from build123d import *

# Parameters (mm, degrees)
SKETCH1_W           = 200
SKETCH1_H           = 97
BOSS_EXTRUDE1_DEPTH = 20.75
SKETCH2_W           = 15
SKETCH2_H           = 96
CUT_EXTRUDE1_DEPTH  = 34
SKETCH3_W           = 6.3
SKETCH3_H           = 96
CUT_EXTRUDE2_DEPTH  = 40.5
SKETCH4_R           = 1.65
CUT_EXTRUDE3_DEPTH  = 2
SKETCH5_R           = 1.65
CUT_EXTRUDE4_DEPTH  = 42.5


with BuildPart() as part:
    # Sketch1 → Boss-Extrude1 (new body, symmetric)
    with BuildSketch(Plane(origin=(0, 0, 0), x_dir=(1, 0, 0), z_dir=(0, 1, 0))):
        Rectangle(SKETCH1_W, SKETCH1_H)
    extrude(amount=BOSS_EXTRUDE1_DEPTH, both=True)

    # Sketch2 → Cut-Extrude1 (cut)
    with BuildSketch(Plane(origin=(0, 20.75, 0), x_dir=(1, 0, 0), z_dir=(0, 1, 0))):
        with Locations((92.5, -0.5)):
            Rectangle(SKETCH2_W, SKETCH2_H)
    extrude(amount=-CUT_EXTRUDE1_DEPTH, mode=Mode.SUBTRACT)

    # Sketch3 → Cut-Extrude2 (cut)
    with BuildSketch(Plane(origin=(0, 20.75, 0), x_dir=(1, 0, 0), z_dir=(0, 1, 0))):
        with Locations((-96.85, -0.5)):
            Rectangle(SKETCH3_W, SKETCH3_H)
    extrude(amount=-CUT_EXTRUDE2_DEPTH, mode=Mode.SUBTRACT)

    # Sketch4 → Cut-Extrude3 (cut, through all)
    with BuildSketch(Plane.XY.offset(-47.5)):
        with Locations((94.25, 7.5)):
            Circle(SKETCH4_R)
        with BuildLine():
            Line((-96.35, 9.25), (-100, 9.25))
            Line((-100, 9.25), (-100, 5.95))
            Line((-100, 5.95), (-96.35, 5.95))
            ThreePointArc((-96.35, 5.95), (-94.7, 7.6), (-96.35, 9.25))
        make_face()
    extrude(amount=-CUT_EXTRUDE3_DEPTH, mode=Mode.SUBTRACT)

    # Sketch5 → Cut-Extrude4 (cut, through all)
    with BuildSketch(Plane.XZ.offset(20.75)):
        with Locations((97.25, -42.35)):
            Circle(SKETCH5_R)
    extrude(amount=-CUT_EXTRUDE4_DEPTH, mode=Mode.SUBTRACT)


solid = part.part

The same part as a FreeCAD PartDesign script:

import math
import FreeCAD as App
import Part
import Sketcher
from FreeCAD import Vector
Q = App.Units.Quantity


def add_polygon(sketch, points):
    """Adds a closed chain of lines whose ends are joined by coincident constraints."""
    first, n = sketch.GeometryCount, len(points)
    for a, b in zip(points, points[1:] + points[:1]):
        sketch.addGeometry(Part.LineSegment(App.Vector(*a, 0), App.Vector(*b, 0)), False)
    for i in range(n):
        sketch.addConstraint(Sketcher.Constraint("Coincident", first + i, 2, first + (i + 1) % n, 1))

doc = App.newDocument("Part")
body = doc.addObject("PartDesign::Body", "Body")

sketch1 = body.newObject("Sketcher::SketchObject", "Sketch")
sketch1.AttachmentSupport = (doc.getObject("XZ_Plane"), [""])
sketch1.MapMode = "FlatFace"
add_polygon(sketch1, [(-100, -48.5), (-100, 48.5), (100, 48.5), (100, -48.5)])
sketch1.addConstraint([
    Sketcher.Constraint("Vertical", 0),
    Sketcher.Constraint("Horizontal", 1),
    Sketcher.Constraint("Vertical", 2),
    Sketcher.Constraint("Horizontal", 3),
    Sketcher.Constraint("Symmetric", 0, 2, 2, 2, -1, 1),
    Sketcher.Constraint("DistanceX", 1, 1, 1, 2, Q("200 mm")),
    Sketcher.Constraint("DistanceY", 0, 1, 0, 2, Q("97 mm")),
])
pad1 = body.newObject("PartDesign::Pad", "Pad")
pad1.Profile = sketch1
pad1.Length = 41.5
pad1.Midplane = True

sketch2 = body.newObject("Sketcher::SketchObject", "Sketch001")
sketch2.AttachmentSupport = (doc.getObject("XZ_Plane"), [""])
sketch2.MapMode = "FlatFace"
sketch2.AttachmentOffset = App.Placement(Vector(0, 0, -20.75), App.Rotation())
add_polygon(sketch2, [(85, -47.5), (85, 48.5), (100, 48.5), (100, -47.5)])
sketch2.addConstraint([
    Sketcher.Constraint("Vertical", 0),
    Sketcher.Constraint("Horizontal", 1),
    Sketcher.Constraint("Vertical", 2),
    Sketcher.Constraint("Horizontal", 3),
    Sketcher.Constraint("DistanceX", 1, 1, 1, 2, Q("15 mm")),
    Sketcher.Constraint("DistanceY", 0, 1, 0, 2, Q("96 mm")),
    Sketcher.Constraint("DistanceX", -1, 1, 0, 2, Q("85 mm")),
    Sketcher.Constraint("DistanceY", -1, 1, 0, 2, Q("48.5 mm")),
])
pocket1 = body.newObject("PartDesign::Pocket", "Pocket")
pocket1.Profile = sketch2
pocket1.Length = 34
pocket1.Reversed = True

sketch3 = body.newObject("Sketcher::SketchObject", "Sketch002")
sketch3.AttachmentSupport = (doc.getObject("XZ_Plane"), [""])
sketch3.MapMode = "FlatFace"
sketch3.AttachmentOffset = App.Placement(Vector(0, 0, -20.75), App.Rotation())
add_polygon(sketch3, [(-100, -47.5), (-100, 48.5), (-93.7, 48.5), (-93.7, -47.5)])
sketch3.addConstraint([
    Sketcher.Constraint("Vertical", 0),
    Sketcher.Constraint("Horizontal", 1),
    Sketcher.Constraint("Vertical", 2),
    Sketcher.Constraint("Horizontal", 3),
    Sketcher.Constraint("DistanceY", 0, 1, 0, 2, Q("96 mm")),
    Sketcher.Constraint("DistanceX", 1, 1, 1, 2, Q("6.3 mm")),
    Sketcher.Constraint("DistanceX", 0, 2, -1, 1, Q("100 mm")),
    Sketcher.Constraint("DistanceY", -1, 1, 0, 2, Q("48.5 mm")),
])
pocket2 = body.newObject("PartDesign::Pocket", "Pocket001")
pocket2.Profile = sketch3
pocket2.Length = 40.5
pocket2.Reversed = True

sketch4 = body.newObject("Sketcher::SketchObject", "Sketch003")
sketch4.AttachmentSupport = (doc.getObject("XY_Plane"), [""])
sketch4.MapMode = "FlatFace"
sketch4.AttachmentOffset = App.Placement(Vector(0, 0, -47.5), App.Rotation())
sketch4.addGeometry([
    Part.Circle(Vector(94.25, 7.5, 0), Vector(0, 0, 1), 1.65),
    Part.LineSegment(Vector(-96.35, 9.25, 0), Vector(-100, 9.25, 0)),
    Part.LineSegment(Vector(-100, 9.25, 0), Vector(-100, 5.95, 0)),
    Part.LineSegment(Vector(-100, 5.95, 0), Vector(-96.35, 5.95, 0)),
    Part.ArcOfCircle(Part.Circle(Vector(-96.35, 7.6, 0), Vector(0, 0, 1), 1.65), math.radians(-90), math.radians(90)),
], False)
sketch4.addConstraint([
    Sketcher.Constraint("Coincident", 1, 2, 2, 1),
    Sketcher.Constraint("Coincident", 2, 2, 3, 1),
    Sketcher.Constraint("Tangent", 3, 2, 4, 1),
    Sketcher.Constraint("Tangent", 4, 2, 1, 1),
    Sketcher.Constraint("Horizontal", 1),
    Sketcher.Constraint("Vertical", 2),
    Sketcher.Constraint("Horizontal", 3),
    Sketcher.Constraint("Equal", 0, 4),
    Sketcher.Constraint("Diameter", 0, Q("3.3 mm")),
    Sketcher.Constraint("DistanceX", 1, 2, -1, 1, Q("100 mm")),
    Sketcher.Constraint("DistanceX", 1, 2, 1, 1, Q("3.65 mm")),
    Sketcher.Constraint("DistanceY", -1, 1, 0, 3, Q("7.5 mm")),
    Sketcher.Constraint("DistanceY", -1, 1, 4, 3, Q("7.6 mm")),
    Sketcher.Constraint("DistanceX", 4, 3, 0, 3, Q("190.6 mm")),
])
pocket3 = body.newObject("PartDesign::Pocket", "Pocket002")
pocket3.Profile = sketch4
pocket3.Type = "ThroughAll"

sketch5 = body.newObject("Sketcher::SketchObject", "Sketch004")
sketch5.AttachmentSupport = (doc.getObject("XZ_Plane"), [""])
sketch5.MapMode = "FlatFace"
sketch5.AttachmentOffset = App.Placement(Vector(0, 0, 20.75), App.Rotation())
sketch5.addGeometry(Part.Circle(Vector(97.25, -42.35, 0), Vector(0, 0, 1), 1.65), False)
sketch5.addConstraint([
    Sketcher.Constraint("Diameter", 0, Q("3.3 mm")),
    Sketcher.Constraint("DistanceX", -1, 1, 0, 3, Q("97.25 mm")),
    Sketcher.Constraint("DistanceY", 0, 3, -1, 1, Q("42.35 mm")),
])
pocket4 = body.newObject("PartDesign::Pocket", "Pocket003")
pocket4.Profile = sketch5
pocket4.Type = "ThroughAll"

doc.recompute()
